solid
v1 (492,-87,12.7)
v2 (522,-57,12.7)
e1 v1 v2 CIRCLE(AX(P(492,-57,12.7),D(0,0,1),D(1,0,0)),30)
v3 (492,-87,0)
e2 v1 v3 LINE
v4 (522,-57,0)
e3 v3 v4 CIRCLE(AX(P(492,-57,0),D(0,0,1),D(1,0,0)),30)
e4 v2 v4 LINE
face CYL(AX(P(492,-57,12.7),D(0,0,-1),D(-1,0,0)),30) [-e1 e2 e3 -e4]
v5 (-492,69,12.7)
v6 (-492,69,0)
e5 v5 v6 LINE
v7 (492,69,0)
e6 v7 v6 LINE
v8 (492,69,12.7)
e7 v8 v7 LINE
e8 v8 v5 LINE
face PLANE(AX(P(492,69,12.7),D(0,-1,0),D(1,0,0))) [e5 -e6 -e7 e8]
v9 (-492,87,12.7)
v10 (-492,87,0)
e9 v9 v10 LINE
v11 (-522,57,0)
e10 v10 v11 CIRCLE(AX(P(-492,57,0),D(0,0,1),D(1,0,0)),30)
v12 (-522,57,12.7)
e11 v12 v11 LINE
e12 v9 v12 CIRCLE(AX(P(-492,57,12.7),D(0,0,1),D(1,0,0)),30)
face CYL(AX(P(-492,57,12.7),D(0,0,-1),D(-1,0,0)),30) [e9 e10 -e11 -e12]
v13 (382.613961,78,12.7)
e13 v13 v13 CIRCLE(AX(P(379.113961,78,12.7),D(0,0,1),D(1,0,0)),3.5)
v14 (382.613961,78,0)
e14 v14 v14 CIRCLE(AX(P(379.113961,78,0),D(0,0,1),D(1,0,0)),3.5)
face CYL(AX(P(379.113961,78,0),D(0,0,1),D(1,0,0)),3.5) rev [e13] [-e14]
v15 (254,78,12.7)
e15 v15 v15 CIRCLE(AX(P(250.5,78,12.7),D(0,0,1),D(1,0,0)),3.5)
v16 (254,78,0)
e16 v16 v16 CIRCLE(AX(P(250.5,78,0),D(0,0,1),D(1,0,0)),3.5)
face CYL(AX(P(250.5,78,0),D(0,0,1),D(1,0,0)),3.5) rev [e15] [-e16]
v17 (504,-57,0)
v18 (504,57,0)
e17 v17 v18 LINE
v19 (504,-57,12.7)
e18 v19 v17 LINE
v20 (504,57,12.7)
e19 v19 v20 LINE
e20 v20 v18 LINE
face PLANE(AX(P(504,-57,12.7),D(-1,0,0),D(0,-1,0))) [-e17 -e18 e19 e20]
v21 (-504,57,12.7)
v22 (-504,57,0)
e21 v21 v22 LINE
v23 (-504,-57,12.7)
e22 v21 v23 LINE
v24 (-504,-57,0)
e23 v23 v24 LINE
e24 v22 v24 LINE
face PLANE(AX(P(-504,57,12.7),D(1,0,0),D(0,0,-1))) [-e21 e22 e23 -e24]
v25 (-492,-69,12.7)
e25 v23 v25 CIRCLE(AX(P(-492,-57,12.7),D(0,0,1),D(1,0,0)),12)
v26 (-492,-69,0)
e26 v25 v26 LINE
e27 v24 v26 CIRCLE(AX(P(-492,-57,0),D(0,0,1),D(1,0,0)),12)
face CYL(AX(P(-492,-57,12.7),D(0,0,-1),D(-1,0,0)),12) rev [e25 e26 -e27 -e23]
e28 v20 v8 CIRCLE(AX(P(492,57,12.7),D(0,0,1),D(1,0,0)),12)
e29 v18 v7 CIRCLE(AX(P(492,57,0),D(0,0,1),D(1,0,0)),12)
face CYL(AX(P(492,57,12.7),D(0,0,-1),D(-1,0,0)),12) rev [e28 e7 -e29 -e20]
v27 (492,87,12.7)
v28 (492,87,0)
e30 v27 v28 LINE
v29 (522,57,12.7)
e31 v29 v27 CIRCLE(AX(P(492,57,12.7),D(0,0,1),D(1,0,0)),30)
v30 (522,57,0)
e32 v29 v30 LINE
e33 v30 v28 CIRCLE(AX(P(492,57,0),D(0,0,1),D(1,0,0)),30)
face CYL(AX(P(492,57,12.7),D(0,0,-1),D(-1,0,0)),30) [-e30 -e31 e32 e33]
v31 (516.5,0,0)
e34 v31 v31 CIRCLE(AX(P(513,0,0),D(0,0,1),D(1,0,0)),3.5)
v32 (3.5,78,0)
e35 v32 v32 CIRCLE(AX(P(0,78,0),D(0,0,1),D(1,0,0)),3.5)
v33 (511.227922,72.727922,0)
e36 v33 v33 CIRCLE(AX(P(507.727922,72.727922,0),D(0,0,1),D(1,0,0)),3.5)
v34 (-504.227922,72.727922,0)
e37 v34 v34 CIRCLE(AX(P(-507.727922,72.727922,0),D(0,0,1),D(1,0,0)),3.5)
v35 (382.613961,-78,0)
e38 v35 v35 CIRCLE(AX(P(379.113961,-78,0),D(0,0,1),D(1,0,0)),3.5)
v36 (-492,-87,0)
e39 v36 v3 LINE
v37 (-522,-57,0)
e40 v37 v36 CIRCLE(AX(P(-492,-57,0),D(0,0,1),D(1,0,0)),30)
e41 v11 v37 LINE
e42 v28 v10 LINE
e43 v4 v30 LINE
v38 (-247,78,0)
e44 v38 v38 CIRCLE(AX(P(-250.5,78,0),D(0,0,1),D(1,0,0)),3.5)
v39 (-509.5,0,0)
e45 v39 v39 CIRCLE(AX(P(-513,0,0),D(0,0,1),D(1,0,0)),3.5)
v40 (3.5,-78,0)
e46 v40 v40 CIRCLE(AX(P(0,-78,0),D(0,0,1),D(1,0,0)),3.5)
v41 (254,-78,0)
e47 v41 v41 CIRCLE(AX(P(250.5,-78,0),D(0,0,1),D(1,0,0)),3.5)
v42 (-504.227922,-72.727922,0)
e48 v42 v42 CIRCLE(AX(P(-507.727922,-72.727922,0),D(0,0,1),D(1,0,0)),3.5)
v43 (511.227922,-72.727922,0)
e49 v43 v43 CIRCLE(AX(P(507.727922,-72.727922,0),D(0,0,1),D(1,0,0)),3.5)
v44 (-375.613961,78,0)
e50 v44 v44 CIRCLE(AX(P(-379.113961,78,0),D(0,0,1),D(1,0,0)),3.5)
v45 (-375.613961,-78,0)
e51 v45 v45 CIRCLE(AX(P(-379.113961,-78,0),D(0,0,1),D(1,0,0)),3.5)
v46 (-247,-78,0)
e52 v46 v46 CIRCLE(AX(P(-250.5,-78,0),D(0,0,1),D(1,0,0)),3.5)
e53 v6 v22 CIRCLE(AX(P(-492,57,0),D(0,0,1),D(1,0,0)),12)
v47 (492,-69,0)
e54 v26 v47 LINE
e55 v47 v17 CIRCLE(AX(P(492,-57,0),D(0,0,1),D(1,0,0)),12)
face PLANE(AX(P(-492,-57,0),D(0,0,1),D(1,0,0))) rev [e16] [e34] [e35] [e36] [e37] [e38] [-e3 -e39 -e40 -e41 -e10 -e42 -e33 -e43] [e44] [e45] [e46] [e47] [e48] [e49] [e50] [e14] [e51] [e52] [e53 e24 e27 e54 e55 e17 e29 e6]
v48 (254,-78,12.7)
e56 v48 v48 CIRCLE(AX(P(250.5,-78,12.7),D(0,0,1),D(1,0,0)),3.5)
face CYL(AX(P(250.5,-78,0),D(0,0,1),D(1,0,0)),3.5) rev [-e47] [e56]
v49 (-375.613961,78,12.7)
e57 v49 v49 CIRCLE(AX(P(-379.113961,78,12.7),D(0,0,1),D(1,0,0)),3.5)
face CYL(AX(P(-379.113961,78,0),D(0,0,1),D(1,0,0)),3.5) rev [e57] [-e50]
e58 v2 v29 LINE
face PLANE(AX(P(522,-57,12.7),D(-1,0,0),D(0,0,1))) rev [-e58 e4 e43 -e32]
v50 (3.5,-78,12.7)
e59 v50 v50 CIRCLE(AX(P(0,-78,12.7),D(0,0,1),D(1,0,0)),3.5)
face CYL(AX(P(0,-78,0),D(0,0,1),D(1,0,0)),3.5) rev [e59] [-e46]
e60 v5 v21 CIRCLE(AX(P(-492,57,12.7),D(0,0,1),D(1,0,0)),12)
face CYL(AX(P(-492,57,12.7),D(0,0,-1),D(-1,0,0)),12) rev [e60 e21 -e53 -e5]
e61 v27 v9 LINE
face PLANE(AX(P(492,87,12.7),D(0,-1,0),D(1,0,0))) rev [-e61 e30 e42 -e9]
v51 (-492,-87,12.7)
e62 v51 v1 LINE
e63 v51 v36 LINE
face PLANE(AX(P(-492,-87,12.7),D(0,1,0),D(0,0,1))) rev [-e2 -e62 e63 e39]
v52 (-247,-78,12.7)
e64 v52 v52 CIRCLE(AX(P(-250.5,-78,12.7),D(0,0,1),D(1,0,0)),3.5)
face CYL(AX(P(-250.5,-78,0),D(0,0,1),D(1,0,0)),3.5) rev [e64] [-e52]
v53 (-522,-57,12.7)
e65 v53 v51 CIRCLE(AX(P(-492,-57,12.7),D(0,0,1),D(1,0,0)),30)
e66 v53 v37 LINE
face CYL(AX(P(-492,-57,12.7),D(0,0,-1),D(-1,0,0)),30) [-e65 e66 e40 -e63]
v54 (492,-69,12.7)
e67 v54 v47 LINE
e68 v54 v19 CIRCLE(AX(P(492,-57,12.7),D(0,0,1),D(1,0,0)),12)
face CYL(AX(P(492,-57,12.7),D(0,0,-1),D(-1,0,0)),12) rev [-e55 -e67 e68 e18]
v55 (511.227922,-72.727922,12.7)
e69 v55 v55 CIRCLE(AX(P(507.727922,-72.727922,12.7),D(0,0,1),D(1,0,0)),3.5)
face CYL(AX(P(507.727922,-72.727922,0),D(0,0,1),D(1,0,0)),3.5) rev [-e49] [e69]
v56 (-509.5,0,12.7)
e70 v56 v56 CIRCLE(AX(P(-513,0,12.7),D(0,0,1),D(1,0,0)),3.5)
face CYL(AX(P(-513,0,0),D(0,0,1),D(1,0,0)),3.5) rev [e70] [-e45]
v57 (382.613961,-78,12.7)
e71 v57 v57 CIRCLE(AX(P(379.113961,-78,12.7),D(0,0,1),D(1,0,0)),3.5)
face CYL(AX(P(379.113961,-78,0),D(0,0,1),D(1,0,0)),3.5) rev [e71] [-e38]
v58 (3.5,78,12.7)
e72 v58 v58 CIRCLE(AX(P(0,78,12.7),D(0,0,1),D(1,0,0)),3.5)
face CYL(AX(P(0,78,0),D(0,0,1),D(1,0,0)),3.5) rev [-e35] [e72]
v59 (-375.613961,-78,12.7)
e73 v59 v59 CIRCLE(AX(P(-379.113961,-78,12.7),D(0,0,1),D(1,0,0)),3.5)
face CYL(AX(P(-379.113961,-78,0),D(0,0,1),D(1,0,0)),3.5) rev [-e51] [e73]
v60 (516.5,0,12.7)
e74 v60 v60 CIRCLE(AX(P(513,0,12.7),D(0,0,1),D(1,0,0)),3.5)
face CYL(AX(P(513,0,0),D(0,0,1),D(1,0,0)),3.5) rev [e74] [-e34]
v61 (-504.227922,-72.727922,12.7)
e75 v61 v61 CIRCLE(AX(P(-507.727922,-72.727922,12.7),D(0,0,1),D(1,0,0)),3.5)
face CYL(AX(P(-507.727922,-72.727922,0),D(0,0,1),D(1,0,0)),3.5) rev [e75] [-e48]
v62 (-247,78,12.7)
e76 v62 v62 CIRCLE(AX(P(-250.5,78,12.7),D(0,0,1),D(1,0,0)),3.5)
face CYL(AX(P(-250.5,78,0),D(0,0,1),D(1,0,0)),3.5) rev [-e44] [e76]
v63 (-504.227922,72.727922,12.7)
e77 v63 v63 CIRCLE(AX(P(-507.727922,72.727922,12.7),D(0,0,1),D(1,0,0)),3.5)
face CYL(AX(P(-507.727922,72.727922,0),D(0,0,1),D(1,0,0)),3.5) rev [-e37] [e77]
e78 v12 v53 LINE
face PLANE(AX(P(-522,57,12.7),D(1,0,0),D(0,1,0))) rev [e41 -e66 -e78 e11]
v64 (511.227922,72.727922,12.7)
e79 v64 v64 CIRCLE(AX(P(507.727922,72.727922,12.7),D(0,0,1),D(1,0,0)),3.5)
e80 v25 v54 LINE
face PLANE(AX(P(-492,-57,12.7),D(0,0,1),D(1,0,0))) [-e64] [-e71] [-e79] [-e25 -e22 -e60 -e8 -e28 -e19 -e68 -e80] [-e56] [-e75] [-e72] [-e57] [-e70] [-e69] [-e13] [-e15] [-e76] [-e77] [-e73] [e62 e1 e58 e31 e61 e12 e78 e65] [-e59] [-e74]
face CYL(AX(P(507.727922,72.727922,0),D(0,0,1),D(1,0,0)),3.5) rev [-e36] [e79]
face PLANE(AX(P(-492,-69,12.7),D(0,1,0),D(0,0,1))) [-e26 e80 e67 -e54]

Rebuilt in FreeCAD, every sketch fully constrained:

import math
import FreeCAD as App
import Part
import Sketcher

V = App.Vector
Q = App.Units.Quantity

doc = App.newDocument("Part")
params = doc.addObject("Spreadsheet::Sheet", "Params")
for row, (alias, value) in enumerate([
    ("sketch1_radius", "30 mm"),
    ("sketch1_radius2", "12 mm"),
    ("sketch1_width", "984 mm"),
    ("sketch1_height", "114 mm"),
    ("pad1_length", "12.7 mm"),
    ("sketch2_diameter", "7 mm"),
    ("sketch3_diameter", "7 mm"),
], start=1):
    params.set(f"A{row}", alias)
    params.set(f"B{row}", "=" + value)
    params.setAlias(f"B{row}", alias)

body = doc.addObject("PartDesign::Body", "Body")

# Sketch on XY plane
sketch1 = body.newObject("Sketcher::SketchObject", "Sketch")
sketch1.AttachmentSupport = (doc.getObject("XY_Plane"), [""])
sketch1.MapMode = "FlatFace"
sketch1.addGeometry([
    Part.LineSegment(V(-492, -87, 0), V(492, -87, 0)),  # 0
    Part.ArcOfCircle(Part.Circle(V(492, -57, 0), V(0, 0, 1), 30), math.radians(-90), math.radians(0)),  # 1
    Part.LineSegment(V(522, -57, 0), V(522, 57, 0)),  # 2
    Part.ArcOfCircle(Part.Circle(V(492, 57, 0), V(0, 0, 1), 30), math.radians(0), math.radians(90)),  # 3
    Part.LineSegment(V(492, 87, 0), V(-492, 87, 0)),  # 4
    Part.ArcOfCircle(Part.Circle(V(-492, 57, 0), V(0, 0, 1), 30), math.radians(90), math.radians(180)),  # 5
    Part.LineSegment(V(-522, 57, 0), V(-522, -57, 0)),  # 6
    Part.ArcOfCircle(Part.Circle(V(-492, -57, 0), V(0, 0, 1), 30), math.radians(180), math.radians(270)),  # 7
    Part.LineSegment(V(492, -69, 0), V(-492, -69, 0)),  # 8
    Part.ArcOfCircle(Part.Circle(V(-492, -57, 0), V(0, 0, 1), 12), math.radians(-180), math.radians(-90)),  # 9
    Part.LineSegment(V(-504, -57, 0), V(-504, 57, 0)),  # 10
    Part.ArcOfCircle(Part.Circle(V(-492, 57, 0), V(0, 0, 1), 12), math.radians(90), math.radians(180)),  # 11
    Part.LineSegment(V(-492, 69, 0), V(492, 69, 0)),  # 12
    Part.ArcOfCircle(Part.Circle(V(492, 57, 0), V(0, 0, 1), 12), math.radians(0), math.radians(90)),  # 13
    Part.LineSegment(V(504, 57, 0), V(504, -57, 0)),  # 14
    Part.ArcOfCircle(Part.Circle(V(492, -57, 0), V(0, 0, 1), 12), math.radians(-90), math.radians(0)),  # 15
], False)
sketch1.addConstraint([
    Sketcher.Constraint("Tangent", 0, 2, 1, 1),
    Sketcher.Constraint("Tangent", 1, 2, 2, 1),
    Sketcher.Constraint("Tangent", 2, 2, 3, 1),
    Sketcher.Constraint("Tangent", 3, 2, 4, 1),
    Sketcher.Constraint("Tangent", 4, 2, 5, 1),
    Sketcher.Constraint("Tangent", 5, 2, 6, 1),
    Sketcher.Constraint("Tangent", 6, 2, 7, 1),
    Sketcher.Constraint("Tangent", 7, 2, 0, 1),
    Sketcher.Constraint("Tangent", 8, 2, 9, 2),
    Sketcher.Constraint("Tangent", 9, 1, 10, 1),
    Sketcher.Constraint("Tangent", 10, 2, 11, 2),
    Sketcher.Constraint("Tangent", 11, 1, 12, 1),
    Sketcher.Constraint("Tangent", 12, 2, 13, 2),
    Sketcher.Constraint("Tangent", 13, 1, 14, 1),
    Sketcher.Constraint("Tangent", 14, 2, 15, 2),
    Sketcher.Constraint("Tangent", 15, 1, 8, 1),
    Sketcher.Constraint("Horizontal", 0),
    Sketcher.Constraint("Vertical", 2),
    Sketcher.Constraint("Horizontal", 4),
    Sketcher.Constraint("Vertical", 6),
    Sketcher.Constraint("Horizontal", 8),
    Sketcher.Constraint("Vertical", 10),
    Sketcher.Constraint("Horizontal", 12),
    Sketcher.Constraint("Vertical", 14),
    Sketcher.Constraint("Coincident", 9, 3, 7, 3),
    Sketcher.Constraint("Coincident", 11, 3, 5, 3),
    Sketcher.Constraint("Coincident", 13, 3, 3, 3),
    Sketcher.Constraint("Equal", 1, 3),
    Sketcher.Constraint("Equal", 3, 5),
    Sketcher.Constraint("Equal", 5, 7),
    Sketcher.Constraint("Equal", 13, 15),
    Sketcher.Constraint("Symmetric", 1, 3, 5, 3, -1, 1),
    Sketcher.Constraint("Radius", 1, Q("30 mm")),
    Sketcher.Constraint("Radius", 9, Q("12 mm")),
    Sketcher.Constraint("DistanceX", 0, 1, 0, 2, Q("984 mm")),
    Sketcher.Constraint("DistanceY", 2, 1, 2, 2, Q("114 mm")),
])
sketch1.setExpression("Constraints[32]", "Params.sketch1_radius")
sketch1.setExpression("Constraints[33]", "Params.sketch1_radius2")
sketch1.setExpression("Constraints[34]", "Params.sketch1_width")
sketch1.setExpression("Constraints[35]", "Params.sketch1_height")
pad1 = body.newObject("PartDesign::Pad", "Pad")
pad1.Profile = sketch1
pad1.setExpression("Length", "Params.pad1_length")

# Sketch on XY plane
sketch2 = body.newObject("Sketcher::SketchObject", "Sketch001")
sketch2.AttachmentSupport = (doc.getObject("XY_Plane"), [""])
sketch2.MapMode = "FlatFace"
sketch2.AttachmentOffset = App.Placement(V(0, 0, 12.7), App.Rotation())
sketch2.addGeometry([
    Part.Circle(V(-507.7, 72.7, 0), V(0, 0, 1), 3.5),  # 0
    Part.Circle(V(-507.7, -72.7, 0), V(0, 0, 1), 3.5),  # 1
    Part.Circle(V(-250.5, -78, 0), V(0, 0, 1), 3.5),  # 2
    Part.Circle(V(-250.5, 78, 0), V(0, 0, 1), 3.5),  # 3
    Part.Circle(V(250.5, 78, 0), V(0, 0, 1), 3.5),  # 4
    Part.Circle(V(250.5, -78, 0), V(0, 0, 1), 3.5),  # 5
    Part.Circle(V(507.7, 72.7, 0), V(0, 0, 1), 3.5),  # 6
    Part.Circle(V(507.7, -72.7, 0), V(0, 0, 1), 3.5),  # 7
], False)
sketch2.addConstraint([
    Sketcher.Constraint("Equal", 0, 1),
    Sketcher.Constraint("Equal", 1, 2),
    Sketcher.Constraint("Equal", 2, 3),
    Sketcher.Constraint("Equal", 3, 4),
    Sketcher.Constraint("Equal", 4, 5),
    Sketcher.Constraint("Equal", 5, 6),
    Sketcher.Constraint("Equal", 6, 7),
    Sketcher.Constraint("Symmetric", 2, 3, 4, 3, -1, 1),
    Sketcher.Constraint("Symmetric", 3, 3, 5, 3, -1, 1),
    Sketcher.Constraint("Symmetric", 1, 3, 6, 3, -1, 1),
    Sketcher.Constraint("Symmetric", 0, 3, 7, 3, -1, 1),
    Sketcher.Constraint("Symmetric", 3, 3, 4, 3, -2),
    Sketcher.Constraint("Symmetric", 0, 3, 6, 3, -2),
    Sketcher.Constraint("Diameter", 0, Q("7 mm")),
    Sketcher.Constraint("DistanceY", 2, 3, -1, 1, Q("78 mm")),
    Sketcher.Constraint("DistanceX", 3, 3, 4, 3, Q("501 mm")),
    Sketcher.Constraint("DistanceX", 0, 3, -1, 1, Q("507.727922 mm")),
    Sketcher.Constraint("DistanceY", -1, 1, 0, 3, Q("72.727922 mm")),
])
sketch2.setExpression("Constraints[13]", "Params.sketch2_diameter")
pocket1 = body.newObject("PartDesign::Pocket", "Pocket")
pocket1.Profile = sketch2
pocket1.Type = "ThroughAll"

# Sketch on XY plane
sketch3 = body.newObject("Sketcher::SketchObject", "Sketch002")
sketch3.AttachmentSupport = (doc.getObject("XY_Plane"), [""])
sketch3.MapMode = "FlatFace"
sketch3.AttachmentOffset = App.Placement(V(0, 0, 12.7), App.Rotation())
sketch3.addGeometry([
    Part.Circle(V(-379.1, 78, 0), V(0, 0, 1), 3.5),  # 0
    Part.Circle(V(-513, 0, 0), V(0, 0, 1), 3.5),  # 1
    Part.Circle(V(-379.1, -78, 0), V(0, 0, 1), 3.5),  # 2
    Part.Circle(V(0, -78, 0), V(0, 0, 1), 3.5),  # 3
    Part.Circle(V(0, 78, 0), V(0, 0, 1), 3.5),  # 4
    Part.Circle(V(379.1, 78, 0), V(0, 0, 1), 3.5),  # 5
    Part.Circle(V(379.1, -78, 0), V(0, 0, 1), 3.5),  # 6
    Part.Circle(V(513, 0, 0), V(0, 0, 1), 3.5),  # 7
], False)
sketch3.addConstraint([
    Sketcher.Constraint("Equal", 0, 1),
    Sketcher.Constraint("Equal", 1, 2),
    Sketcher.Constraint("Equal", 2, 3),
    Sketcher.Constraint("Equal", 3, 4),
    Sketcher.Constraint("Equal", 4, 5),
    Sketcher.Constraint("Equal", 5, 6),
    Sketcher.Constraint("Equal", 6, 7),
    Sketcher.Constraint("Symmetric", 3, 3, 4, 3, -1, 1),
    Sketcher.Constraint("Symmetric", 2, 3, 5, 3, -1, 1),
    Sketcher.Constraint("Symmetric", 0, 3, 6, 3, -1, 1),
    Sketcher.Constraint("Symmetric", 1, 3, 7, 3, -1, 1),
    Sketcher.Constraint("Symmetric", 0, 3, 5, 3, -2),
    Sketcher.Constraint("PointOnObject", 1, 3, -1),
    Sketcher.Constraint("PointOnObject", 3, 3, -2),
    Sketcher.Constraint("Horizontal", 2, 3, 3, 3),
    Sketcher.Constraint("Diameter", 0, Q("7 mm")),
    Sketcher.Constraint("DistanceY", -1, 1, 0, 3, Q("78 mm")),
    Sketcher.Constraint("DistanceX", 1, 3, -1, 1, Q("513 mm")),
    Sketcher.Constraint("DistanceX", 0, 3, -1, 1, Q("379.113961 mm")),
])
sketch3.setExpression("Constraints[15]", "Params.sketch3_diameter")
pocket2 = body.newObject("PartDesign::Pocket", "Pocket001")
pocket2.Profile = sketch3
pocket2.Type = "ThroughAll"
pocket2.Midplane = True

doc.recompute()
